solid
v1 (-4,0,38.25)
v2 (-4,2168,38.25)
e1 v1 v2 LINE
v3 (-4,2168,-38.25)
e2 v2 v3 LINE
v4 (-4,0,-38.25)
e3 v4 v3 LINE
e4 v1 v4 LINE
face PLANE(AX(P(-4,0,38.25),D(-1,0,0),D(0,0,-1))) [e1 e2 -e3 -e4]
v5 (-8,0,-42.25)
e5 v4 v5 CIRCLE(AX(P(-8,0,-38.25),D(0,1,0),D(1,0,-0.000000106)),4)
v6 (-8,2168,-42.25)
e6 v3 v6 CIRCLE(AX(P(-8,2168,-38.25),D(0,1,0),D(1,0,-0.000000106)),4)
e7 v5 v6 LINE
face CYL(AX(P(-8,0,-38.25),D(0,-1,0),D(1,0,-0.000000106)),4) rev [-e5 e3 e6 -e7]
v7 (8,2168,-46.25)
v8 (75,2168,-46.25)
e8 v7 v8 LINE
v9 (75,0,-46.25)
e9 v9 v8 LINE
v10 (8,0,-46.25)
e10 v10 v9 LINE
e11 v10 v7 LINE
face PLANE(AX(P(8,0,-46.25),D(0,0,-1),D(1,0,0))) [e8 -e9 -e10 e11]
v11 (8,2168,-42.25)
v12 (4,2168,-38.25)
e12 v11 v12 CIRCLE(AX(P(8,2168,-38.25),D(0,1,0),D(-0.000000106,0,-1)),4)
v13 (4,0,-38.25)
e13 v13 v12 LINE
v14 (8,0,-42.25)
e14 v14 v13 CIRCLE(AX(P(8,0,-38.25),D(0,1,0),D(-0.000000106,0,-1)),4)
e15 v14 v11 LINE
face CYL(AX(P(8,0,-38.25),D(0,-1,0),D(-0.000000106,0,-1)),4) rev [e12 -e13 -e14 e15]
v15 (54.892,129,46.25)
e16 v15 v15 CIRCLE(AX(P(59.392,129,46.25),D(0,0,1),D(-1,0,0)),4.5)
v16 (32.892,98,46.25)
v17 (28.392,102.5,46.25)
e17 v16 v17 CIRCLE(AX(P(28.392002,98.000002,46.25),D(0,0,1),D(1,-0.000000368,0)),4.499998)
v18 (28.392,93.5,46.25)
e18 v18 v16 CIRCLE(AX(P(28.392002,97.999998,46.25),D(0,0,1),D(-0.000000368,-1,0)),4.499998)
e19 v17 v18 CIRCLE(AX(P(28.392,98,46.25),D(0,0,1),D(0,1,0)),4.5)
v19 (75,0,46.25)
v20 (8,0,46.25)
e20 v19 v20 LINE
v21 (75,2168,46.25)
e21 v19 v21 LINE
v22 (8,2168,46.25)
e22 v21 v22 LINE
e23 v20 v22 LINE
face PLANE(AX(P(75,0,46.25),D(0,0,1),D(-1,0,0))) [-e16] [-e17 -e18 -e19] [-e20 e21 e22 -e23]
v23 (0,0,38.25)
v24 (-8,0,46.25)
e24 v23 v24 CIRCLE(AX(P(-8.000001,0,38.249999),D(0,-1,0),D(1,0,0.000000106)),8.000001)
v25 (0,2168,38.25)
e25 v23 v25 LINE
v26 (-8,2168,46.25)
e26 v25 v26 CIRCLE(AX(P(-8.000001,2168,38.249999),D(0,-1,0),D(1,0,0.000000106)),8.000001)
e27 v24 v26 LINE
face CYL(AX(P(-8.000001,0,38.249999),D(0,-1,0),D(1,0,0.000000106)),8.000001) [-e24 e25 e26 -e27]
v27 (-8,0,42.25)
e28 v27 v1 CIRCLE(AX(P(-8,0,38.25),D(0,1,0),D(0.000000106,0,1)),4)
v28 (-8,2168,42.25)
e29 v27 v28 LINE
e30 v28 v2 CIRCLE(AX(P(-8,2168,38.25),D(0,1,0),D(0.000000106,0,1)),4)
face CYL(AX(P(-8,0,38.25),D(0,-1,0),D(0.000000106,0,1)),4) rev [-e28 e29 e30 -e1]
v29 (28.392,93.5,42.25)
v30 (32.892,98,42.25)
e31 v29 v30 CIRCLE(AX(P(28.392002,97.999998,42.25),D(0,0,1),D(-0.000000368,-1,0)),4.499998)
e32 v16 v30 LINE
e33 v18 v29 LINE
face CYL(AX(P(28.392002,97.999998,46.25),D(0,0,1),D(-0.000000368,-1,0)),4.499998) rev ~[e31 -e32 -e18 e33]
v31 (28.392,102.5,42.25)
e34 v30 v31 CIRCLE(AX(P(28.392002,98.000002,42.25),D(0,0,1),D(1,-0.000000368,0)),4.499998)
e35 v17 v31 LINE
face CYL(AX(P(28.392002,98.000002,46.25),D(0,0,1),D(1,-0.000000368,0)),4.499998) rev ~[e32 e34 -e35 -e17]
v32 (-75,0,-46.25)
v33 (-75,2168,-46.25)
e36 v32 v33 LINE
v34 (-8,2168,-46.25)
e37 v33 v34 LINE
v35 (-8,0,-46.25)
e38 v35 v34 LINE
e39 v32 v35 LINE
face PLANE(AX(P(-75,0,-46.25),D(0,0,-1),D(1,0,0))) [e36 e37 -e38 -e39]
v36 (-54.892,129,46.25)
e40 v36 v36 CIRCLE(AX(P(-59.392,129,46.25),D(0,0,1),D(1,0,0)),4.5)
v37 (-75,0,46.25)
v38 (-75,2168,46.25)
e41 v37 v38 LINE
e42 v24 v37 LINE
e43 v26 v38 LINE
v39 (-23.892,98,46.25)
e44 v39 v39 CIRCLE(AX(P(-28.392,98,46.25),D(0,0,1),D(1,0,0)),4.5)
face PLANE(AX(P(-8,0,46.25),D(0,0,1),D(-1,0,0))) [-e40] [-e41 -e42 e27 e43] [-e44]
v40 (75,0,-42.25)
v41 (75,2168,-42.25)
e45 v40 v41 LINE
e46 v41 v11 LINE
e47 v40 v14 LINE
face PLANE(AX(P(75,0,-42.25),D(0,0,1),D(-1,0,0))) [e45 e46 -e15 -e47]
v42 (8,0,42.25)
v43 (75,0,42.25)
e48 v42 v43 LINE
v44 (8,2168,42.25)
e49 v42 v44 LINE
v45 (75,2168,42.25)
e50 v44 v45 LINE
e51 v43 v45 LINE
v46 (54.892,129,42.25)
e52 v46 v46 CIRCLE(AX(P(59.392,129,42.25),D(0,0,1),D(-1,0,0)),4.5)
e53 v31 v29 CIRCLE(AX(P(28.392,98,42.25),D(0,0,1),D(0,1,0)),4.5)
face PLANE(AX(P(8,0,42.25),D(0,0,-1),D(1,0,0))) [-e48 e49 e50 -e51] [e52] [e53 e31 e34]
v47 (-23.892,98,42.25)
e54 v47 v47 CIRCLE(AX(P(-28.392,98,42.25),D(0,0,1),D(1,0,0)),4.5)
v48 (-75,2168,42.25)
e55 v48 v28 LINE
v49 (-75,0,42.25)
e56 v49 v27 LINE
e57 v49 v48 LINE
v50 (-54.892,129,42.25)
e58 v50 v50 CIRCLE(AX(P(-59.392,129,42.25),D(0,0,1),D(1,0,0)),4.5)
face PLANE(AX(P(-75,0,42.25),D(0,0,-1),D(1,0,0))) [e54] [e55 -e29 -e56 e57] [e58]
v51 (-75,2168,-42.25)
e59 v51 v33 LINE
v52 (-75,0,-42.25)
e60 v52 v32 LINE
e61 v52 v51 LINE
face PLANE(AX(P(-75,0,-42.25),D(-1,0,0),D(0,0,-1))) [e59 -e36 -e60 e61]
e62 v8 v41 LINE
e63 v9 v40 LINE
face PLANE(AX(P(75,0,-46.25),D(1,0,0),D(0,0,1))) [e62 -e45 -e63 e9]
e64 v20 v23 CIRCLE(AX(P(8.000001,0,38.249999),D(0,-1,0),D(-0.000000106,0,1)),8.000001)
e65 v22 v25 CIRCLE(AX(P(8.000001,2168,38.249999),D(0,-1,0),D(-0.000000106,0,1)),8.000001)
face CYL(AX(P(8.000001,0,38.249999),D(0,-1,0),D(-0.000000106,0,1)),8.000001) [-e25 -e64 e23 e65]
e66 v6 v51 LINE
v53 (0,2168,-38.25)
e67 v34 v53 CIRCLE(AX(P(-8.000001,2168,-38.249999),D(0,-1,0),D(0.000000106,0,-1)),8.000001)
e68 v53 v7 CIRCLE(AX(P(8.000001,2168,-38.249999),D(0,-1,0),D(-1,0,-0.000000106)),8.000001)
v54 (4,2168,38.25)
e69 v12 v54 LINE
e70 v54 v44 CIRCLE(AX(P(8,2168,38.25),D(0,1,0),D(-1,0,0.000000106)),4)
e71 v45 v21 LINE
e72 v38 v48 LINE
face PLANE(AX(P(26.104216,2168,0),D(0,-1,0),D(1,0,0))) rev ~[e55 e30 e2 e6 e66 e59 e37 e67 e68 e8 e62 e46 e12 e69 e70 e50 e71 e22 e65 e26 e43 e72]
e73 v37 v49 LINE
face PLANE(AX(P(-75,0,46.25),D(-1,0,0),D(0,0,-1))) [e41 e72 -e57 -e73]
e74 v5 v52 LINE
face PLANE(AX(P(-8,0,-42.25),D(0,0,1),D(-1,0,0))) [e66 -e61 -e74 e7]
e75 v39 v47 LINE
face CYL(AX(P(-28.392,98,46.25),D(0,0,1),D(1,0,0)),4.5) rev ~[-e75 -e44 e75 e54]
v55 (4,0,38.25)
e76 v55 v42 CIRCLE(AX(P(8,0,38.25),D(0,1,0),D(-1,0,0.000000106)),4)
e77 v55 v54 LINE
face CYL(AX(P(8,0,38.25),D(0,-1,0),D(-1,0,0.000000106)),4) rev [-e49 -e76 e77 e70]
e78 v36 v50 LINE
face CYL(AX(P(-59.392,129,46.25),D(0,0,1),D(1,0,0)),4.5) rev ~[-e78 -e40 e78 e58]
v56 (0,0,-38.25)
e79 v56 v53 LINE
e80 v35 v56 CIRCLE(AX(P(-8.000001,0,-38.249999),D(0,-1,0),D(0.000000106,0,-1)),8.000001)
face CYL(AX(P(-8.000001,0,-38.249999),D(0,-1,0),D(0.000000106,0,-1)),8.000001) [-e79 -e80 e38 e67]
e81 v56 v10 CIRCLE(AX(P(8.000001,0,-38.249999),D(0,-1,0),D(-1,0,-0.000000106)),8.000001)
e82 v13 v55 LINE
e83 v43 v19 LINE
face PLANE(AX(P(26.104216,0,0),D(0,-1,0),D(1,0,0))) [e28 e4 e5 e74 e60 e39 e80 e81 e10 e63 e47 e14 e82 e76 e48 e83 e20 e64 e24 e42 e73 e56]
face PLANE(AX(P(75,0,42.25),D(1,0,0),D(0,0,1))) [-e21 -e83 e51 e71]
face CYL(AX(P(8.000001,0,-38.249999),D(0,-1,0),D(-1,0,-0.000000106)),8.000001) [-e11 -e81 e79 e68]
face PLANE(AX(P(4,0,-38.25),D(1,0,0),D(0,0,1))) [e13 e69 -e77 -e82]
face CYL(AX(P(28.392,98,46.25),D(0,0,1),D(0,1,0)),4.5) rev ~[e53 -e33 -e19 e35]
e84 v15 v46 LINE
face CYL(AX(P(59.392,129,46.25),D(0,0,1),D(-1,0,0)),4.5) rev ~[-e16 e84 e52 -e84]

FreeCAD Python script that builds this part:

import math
import FreeCAD as App
import Part
import Sketcher
from FreeCAD import Vector

doc = App.newDocument("Part")
params = doc.addObject("Spreadsheet::Sheet", "Params")
for row, (alias, value) in enumerate([
    ("sketch1_radius", "8.000001 mm"),
    ("sketch1_radius2", "4 mm"),
    ("sketch1_width", "67 mm"),
    ("sketch1_height", "76.5 mm"),
    ("pad1_length", "2168 mm"),
    ("sketch2_diameter", "9 mm"),
    ("pocket1_length", "4 mm"),
], start=1):
    params.set(f"A{row}", alias)
    params.set(f"B{row}", "=" + value)
    params.setAlias(f"B{row}", alias)

body = doc.addObject("PartDesign::Body", "Body")

# Sketch on XZ plane
sketch1 = body.newObject("Sketcher::SketchObject", "Sketch")
sketch1.AttachmentSupport = (doc.getObject("XZ_Plane"), [""])
sketch1.MapMode = "FlatFace"
sketch1.addGeometry([
    Part.ArcOfCircle(Part.Circle(Vector(8, -38.2, 0), Vector(0, 0, 1), 8), math.radians(-180), math.radians(-90)),  # 0
    Part.LineSegment(Vector(8, -46.2, 0), Vector(75, -46.2, 0)),  # 1
    Part.LineSegment(Vector(75, -46.2, 0), Vector(75, -42.2, 0)),  # 2
    Part.LineSegment(Vector(75, -42.2, 0), Vector(8, -42.2, 0)),  # 3
    Part.ArcOfCircle(Part.Circle(Vector(8, -38.2, 0), Vector(0, 0, 1), 4), math.radians(-180), math.radians(-90)),  # 4
    Part.LineSegment(Vector(4, -38.2, 0), Vector(4, 38.2, 0)),  # 5
    Part.ArcOfCircle(Part.Circle(Vector(8, 38.2, 0), Vector(0, 0, 1), 4), math.radians(90), math.radians(180)),  # 6
    Part.LineSegment(Vector(8, 42.2, 0), Vector(75, 42.2, 0)),  # 7
    Part.LineSegment(Vector(75, 42.2, 0), Vector(75, 46.2, 0)),  # 8
    Part.LineSegment(Vector(75, 46.2, 0), Vector(8, 46.2, 0)),  # 9
    Part.ArcOfCircle(Part.Circle(Vector(8, 38.2, 0), Vector(0, 0, 1), 8), math.radians(90), math.radians(180)),  # 10
    Part.ArcOfCircle(Part.Circle(Vector(-8, 38.2, 0), Vector(0, 0, 1), 8), math.radians(0), math.radians(90)),  # 11
    Part.LineSegment(Vector(-8, 46.2, 0), Vector(-75, 46.2, 0)),  # 12
    Part.LineSegment(Vector(-75, 46.2, 0), Vector(-75, 42.2, 0)),  # 13
    Part.LineSegment(Vector(-75, 42.2, 0), Vector(-8, 42.2, 0)),  # 14
    Part.ArcOfCircle(Part.Circle(Vector(-8, 38.2, 0), Vector(0, 0, 1), 4), math.radians(0), math.radians(90)),  # 15
    Part.LineSegment(Vector(-4, 38.2, 0), Vector(-4, -38.2, 0)),  # 16
    Part.ArcOfCircle(Part.Circle(Vector(-8, -38.2, 0), Vector(0, 0, 1), 4), math.radians(-90), math.radians(0)),  # 17
    Part.LineSegment(Vector(-8, -42.2, 0), Vector(-75, -42.2, 0)),  # 18
    Part.LineSegment(Vector(-75, -42.2, 0), Vector(-75, -46.2, 0)),  # 19
    Part.LineSegment(Vector(-75, -46.2, 0), Vector(-8, -46.2, 0)),  # 20
    Part.ArcOfCircle(Part.Circle(Vector(-8, -38.2, 0), Vector(0, 0, 1), 8), math.radians(-90), math.radians(0)),  # 21
], False)
sketch1.addConstraint([
    Sketcher.Constraint("Tangent", 0, 2, 1, 1),
    Sketcher.Constraint("Coincident", 1, 2, 2, 1),
    Sketcher.Constraint("Coincident", 2, 2, 3, 1),
    Sketcher.Constraint("Tangent", 3, 2, 4, 2),
    Sketcher.Constraint("Tangent", 4, 1, 5, 1),
    Sketcher.Constraint("Tangent", 5, 2, 6, 2),
    Sketcher.Constraint("Tangent", 6, 1, 7, 1),
    Sketcher.Constraint("Coincident", 7, 2, 8, 1),
    Sketcher.Constraint("Coincident", 8, 2, 9, 1),
    Sketcher.Constraint("Tangent", 9, 2, 10, 1),
    Sketcher.Constraint("Tangent", 10, 2, 11, 1),
    Sketcher.Constraint("Tangent", 11, 2, 12, 1),
    Sketcher.Constraint("Coincident", 12, 2, 13, 1),
    Sketcher.Constraint("Coincident", 13, 2, 14, 1),
    Sketcher.Constraint("Tangent", 14, 2, 15, 2),
    Sketcher.Constraint("Tangent", 15, 1, 16, 1),
    Sketcher.Constraint("Tangent", 16, 2, 17, 2),
    Sketcher.Constraint("Tangent", 17, 1, 18, 1),
    Sketcher.Constraint("Coincident", 18, 2, 19, 1),
    Sketcher.Constraint("Coincident", 19, 2, 20, 1),
    Sketcher.Constraint("Tangent", 20, 2, 21, 1),
    Sketcher.Constraint("Tangent", 21, 2, 0, 1),
    Sketcher.Constraint("Horizontal", 1),
    Sketcher.Constraint("Vertical", 2),
    Sketcher.Constraint("Horizontal", 3),
    Sketcher.Constraint("Vertical", 5),
    Sketcher.Constraint("Horizontal", 7),
    Sketcher.Constraint("Vertical", 8),
    Sketcher.Constraint("Horizontal", 9),
    Sketcher.Constraint("Horizontal", 12),
    Sketcher.Constraint("Vertical", 13),
    Sketcher.Constraint("Horizontal", 14),
    Sketcher.Constraint("Vertical", 16),
    Sketcher.Constraint("Horizontal", 18),
    Sketcher.Constraint("Vertical", 19),
    Sketcher.Constraint("Horizontal", 20),
    Sketcher.Constraint("Coincident", 4, 3, 0, 3),
    Sketcher.Constraint("Coincident", 10, 3, 6, 3),
    Sketcher.Constraint("Coincident", 15, 3, 11, 3),
    Sketcher.Constraint("Coincident", 21, 3, 17, 3),
    Sketcher.Constraint("Equal", 4, 6),
    Sketcher.Constraint("Equal", 0, 10),
    Sketcher.Constraint("Equal", 10, 11),
    Sketcher.Constraint("Equal", 6, 15),
    Sketcher.Constraint("Equal", 15, 17),
    Sketcher.Constraint("Symmetric", 0, 3, 11, 3, -1, 1),
    Sketcher.Constraint("Symmetric", 7, 2, 18, 2, -1, 1),
    Sketcher.Constraint("Symmetric", 8, 2, 12, 2, -2),
    Sketcher.Constraint("Vertical", 2, 2, 7, 2),
    Sketcher.Constraint("Radius", 0, 8.000001),
    Sketcher.Constraint("Radius", 4, 4.0),
    Sketcher.Constraint("DistanceX", 1, 1, 1, 2, 67.0),
    Sketcher.Constraint("DistanceY", 5, 1, 5, 2, 76.5),
])
sketch1.setExpression("Constraints[49]", "Params.sketch1_radius")
sketch1.setExpression("Constraints[50]", "Params.sketch1_radius2")
sketch1.setExpression("Constraints[51]", "Params.sketch1_width")
sketch1.setExpression("Constraints[52]", "Params.sketch1_height")
pad1 = body.newObject("PartDesign::Pad", "Pad")
pad1.Profile = sketch1
pad1.setExpression("Length", "Params.pad1_length")
pad1.Reversed = True

# Sketch on XY plane
sketch2 = body.newObject("Sketcher::SketchObject", "Sketch001")
sketch2.AttachmentSupport = (doc.getObject("XY_Plane"), [""])
sketch2.MapMode = "FlatFace"
sketch2.AttachmentOffset = App.Placement(Vector(0, 0, 46.25), App.Rotation())
sketch2.addGeometry([
    Part.Circle(Vector(59.4, 129, 0), Vector(0, 0, 1), 4.5),  # 0
    Part.ArcOfCircle(Part.Circle(Vector(28.4, 98, 0), Vector(0, 0, 1), 4.5), math.radians(-90), math.radians(0)),  # 1
    Part.ArcOfCircle(Part.Circle(Vector(28.4, 98, 0), Vector(0, 0, 1), 4.5), math.radians(0), math.radians(90)),  # 2
    Part.ArcOfCircle(Part.Circle(Vector(28.4, 98, 0), Vector(0, 0, 1), 4.5), math.radians(90), math.radians(270)),  # 3
    Part.Circle(Vector(-28.4, 98, 0), Vector(0, 0, 1), 4.5),  # 4
    Part.Circle(Vector(-59.4, 129, 0), Vector(0, 0, 1), 4.5),  # 5
], False)
sketch2.addConstraint([
    Sketcher.Constraint("Tangent", 1, 2, 2, 1),
    Sketcher.Constraint("Tangent", 2, 2, 3, 1),
    Sketcher.Constraint("Tangent", 3, 2, 1, 1),
    Sketcher.Constraint("Equal", 0, 1),
    Sketcher.Constraint("Equal", 3, 4),
    Sketcher.Constraint("Equal", 4, 5),
    Sketcher.Constraint("Symmetric", 1, 3, 4, 3, -2),
    Sketcher.Constraint("Symmetric", 0, 3, 5, 3, -2),
    Sketcher.Constraint("Horizontal", 4, 3, 1, 2),
    Sketcher.Constraint("Vertical", 3, 3, 2, 2),
    Sketcher.Constraint("Vertical", 2, 2, 3, 2),
    Sketcher.Constraint("Diameter", 0, 9.0),
    Sketcher.Constraint("DistanceY", -1, 1, 0, 3, 129.0),
    Sketcher.Constraint("DistanceY", -1, 1, 1, 3, 97.999998),
    Sketcher.Constraint("DistanceX", 1, 3, 0, 3, 30.999998),
    Sketcher.Constraint("DistanceX", -1, 1, 0, 3, 59.392),
])
sketch2.setExpression("Constraints[11]", "Params.sketch2_diameter")
pocket1 = body.newObject("PartDesign::Pocket", "Pocket")
pocket1.Profile = sketch2
pocket1.setExpression("Length", "Params.pocket1_length")

doc.recompute()
